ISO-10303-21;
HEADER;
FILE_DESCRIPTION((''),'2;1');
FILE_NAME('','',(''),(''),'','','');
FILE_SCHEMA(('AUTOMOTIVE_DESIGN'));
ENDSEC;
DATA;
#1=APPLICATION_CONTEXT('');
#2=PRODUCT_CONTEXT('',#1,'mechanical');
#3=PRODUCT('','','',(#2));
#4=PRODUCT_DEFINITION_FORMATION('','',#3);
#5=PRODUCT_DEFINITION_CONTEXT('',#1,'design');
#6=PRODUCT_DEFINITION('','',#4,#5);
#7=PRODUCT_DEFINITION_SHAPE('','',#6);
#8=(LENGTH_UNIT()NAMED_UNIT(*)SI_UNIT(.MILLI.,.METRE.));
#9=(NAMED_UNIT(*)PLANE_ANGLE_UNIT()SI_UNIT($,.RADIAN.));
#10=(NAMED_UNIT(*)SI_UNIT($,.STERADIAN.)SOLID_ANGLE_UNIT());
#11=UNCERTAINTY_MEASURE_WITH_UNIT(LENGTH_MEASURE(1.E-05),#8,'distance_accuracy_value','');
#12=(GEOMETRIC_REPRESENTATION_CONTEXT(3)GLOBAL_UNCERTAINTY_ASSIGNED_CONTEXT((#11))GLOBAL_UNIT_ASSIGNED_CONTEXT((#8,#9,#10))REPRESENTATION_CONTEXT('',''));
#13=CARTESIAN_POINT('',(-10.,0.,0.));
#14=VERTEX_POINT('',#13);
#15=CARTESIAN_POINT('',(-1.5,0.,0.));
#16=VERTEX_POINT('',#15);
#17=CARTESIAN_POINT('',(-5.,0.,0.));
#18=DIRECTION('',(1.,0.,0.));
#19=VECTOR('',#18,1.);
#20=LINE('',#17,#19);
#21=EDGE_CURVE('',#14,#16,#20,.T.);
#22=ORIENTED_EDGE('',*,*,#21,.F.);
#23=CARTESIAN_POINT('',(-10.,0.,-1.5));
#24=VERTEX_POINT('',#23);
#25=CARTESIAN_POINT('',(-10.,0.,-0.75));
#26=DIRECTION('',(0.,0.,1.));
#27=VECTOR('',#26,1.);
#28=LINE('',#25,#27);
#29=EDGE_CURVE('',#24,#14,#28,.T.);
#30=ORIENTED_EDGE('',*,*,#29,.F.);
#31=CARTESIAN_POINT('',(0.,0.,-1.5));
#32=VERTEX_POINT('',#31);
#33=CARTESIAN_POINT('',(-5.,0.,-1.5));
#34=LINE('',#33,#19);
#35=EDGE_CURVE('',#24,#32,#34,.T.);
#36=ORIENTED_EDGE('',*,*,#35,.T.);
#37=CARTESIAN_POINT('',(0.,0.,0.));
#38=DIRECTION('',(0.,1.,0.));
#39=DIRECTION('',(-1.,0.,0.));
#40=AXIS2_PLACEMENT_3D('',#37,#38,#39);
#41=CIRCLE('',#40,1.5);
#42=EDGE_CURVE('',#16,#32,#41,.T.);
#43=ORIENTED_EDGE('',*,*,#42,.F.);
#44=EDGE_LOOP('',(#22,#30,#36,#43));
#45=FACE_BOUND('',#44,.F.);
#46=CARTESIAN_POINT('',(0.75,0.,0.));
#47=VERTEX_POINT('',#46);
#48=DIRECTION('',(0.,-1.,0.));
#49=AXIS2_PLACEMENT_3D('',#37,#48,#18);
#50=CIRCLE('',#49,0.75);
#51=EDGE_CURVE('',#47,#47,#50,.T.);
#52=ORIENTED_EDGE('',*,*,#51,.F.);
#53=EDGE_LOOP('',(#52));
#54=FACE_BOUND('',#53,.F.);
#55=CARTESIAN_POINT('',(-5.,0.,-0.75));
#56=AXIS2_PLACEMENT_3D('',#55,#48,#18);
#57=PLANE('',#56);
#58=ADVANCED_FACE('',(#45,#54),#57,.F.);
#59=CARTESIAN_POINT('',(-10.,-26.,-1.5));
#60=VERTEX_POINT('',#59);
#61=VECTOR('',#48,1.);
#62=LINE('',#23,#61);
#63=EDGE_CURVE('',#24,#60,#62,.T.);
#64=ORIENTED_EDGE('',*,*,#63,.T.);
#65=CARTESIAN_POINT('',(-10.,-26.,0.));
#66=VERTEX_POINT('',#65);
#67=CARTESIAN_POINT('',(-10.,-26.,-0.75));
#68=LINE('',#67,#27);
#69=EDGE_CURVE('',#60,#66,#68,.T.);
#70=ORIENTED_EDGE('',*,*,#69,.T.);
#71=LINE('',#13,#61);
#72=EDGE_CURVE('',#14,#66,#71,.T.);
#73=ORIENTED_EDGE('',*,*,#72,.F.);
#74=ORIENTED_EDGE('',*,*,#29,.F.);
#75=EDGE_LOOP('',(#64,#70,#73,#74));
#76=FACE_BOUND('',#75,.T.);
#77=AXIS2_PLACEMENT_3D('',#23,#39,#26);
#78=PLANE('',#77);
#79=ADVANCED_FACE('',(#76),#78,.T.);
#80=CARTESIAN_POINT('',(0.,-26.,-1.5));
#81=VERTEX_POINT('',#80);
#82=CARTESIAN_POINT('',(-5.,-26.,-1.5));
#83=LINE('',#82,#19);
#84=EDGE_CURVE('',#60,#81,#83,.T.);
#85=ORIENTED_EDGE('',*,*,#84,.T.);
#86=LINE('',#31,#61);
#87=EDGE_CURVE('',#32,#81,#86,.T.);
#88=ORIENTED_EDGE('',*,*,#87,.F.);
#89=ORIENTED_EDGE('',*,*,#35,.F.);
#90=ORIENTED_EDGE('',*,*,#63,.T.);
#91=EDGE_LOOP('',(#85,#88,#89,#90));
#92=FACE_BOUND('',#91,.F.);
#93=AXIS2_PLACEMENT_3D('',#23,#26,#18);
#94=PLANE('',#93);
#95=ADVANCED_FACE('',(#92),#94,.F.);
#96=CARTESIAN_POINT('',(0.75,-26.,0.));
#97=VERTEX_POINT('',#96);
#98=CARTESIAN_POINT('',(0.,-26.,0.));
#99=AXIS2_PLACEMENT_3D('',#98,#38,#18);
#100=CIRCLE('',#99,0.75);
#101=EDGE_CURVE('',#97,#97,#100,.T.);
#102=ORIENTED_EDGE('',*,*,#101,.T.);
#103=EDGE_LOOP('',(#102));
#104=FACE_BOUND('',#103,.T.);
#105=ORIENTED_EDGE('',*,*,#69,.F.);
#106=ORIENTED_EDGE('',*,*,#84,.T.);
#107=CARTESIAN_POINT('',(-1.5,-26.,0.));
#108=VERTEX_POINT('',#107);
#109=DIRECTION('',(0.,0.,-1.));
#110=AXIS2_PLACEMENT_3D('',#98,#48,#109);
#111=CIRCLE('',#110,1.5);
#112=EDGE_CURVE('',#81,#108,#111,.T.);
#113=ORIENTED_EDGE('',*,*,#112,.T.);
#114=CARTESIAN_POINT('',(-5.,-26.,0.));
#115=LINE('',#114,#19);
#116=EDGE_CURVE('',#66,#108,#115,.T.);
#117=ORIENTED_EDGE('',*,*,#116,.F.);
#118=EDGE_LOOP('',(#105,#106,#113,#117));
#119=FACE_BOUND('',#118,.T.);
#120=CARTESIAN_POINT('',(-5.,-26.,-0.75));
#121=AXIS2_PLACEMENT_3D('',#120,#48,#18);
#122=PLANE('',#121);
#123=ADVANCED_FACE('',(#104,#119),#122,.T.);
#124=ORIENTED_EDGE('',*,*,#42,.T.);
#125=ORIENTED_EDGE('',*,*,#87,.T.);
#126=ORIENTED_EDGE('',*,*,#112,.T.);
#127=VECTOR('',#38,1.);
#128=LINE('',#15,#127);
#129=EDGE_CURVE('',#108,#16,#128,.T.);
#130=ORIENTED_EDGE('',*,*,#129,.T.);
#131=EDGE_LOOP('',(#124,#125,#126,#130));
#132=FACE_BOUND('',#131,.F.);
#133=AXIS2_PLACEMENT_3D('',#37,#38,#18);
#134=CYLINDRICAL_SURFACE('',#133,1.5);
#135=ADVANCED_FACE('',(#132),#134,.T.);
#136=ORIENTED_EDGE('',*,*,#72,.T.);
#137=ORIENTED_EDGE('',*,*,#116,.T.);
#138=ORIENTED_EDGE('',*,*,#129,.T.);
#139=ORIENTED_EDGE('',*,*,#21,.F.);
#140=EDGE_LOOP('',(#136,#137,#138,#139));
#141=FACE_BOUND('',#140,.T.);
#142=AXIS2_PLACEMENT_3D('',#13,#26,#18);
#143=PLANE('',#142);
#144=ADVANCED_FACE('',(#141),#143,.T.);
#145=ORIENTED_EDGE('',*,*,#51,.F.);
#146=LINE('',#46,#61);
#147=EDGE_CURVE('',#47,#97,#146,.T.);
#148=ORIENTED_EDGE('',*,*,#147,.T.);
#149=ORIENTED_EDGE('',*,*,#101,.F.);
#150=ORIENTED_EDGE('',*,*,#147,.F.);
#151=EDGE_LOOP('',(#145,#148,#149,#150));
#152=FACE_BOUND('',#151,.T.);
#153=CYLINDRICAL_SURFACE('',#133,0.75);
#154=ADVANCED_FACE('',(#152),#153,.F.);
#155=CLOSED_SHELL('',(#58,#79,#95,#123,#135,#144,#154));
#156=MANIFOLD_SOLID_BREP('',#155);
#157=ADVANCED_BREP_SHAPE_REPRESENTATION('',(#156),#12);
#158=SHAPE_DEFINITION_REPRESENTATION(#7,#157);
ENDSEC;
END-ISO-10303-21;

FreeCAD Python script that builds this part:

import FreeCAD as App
import Part
import Sketcher

V = App.Vector

doc = App.newDocument("Part")
params = doc.addObject("Spreadsheet::Sheet", "Params")
for row, (alias, value) in enumerate([
    ("sketch1_diameter", "3 mm"),
    ("pad1_length", "26 mm"),
    ("sketch2_width", "10 mm"),
    ("sketch2_height", "1.5 mm"),
    ("pad2_length", "26 mm"),
    ("sketch3_diameter", "1.5 mm"),
    ("pocket1_length", "28.9 mm"),
], start=1):
    params.set(f"A{row}", alias)
    params.set(f"B{row}", "=" + value)
    params.setAlias(f"B{row}", alias)

body = doc.addObject("PartDesign::Body", "Body")

# Sketch on XZ plane
sketch1 = body.newObject("Sketcher::SketchObject", "Sketch")
sketch1.AttachmentSupport = (doc.getObject("XZ_Plane"), [""])
sketch1.MapMode = "FlatFace"
sketch1.addGeometry(Part.Circle(V(0, 0, 0), V(0, 0, 1), 1.5), False)
sketch1.addConstraint([
    Sketcher.Constraint("Coincident", 0, 3, -1, 1),
    Sketcher.Constraint("Diameter", 0, 3.0),
])
sketch1.setExpression("Constraints[1]", "Params.sketch1_diameter")
pad1 = body.newObject("PartDesign::Pad", "Pad")
pad1.Profile = sketch1
pad1.setExpression("Length", "Params.pad1_length")

# Sketch on XZ plane
sketch2 = body.newObject("Sketcher::SketchObject", "Sketch001")
sketch2.AttachmentSupport = (doc.getObject("XZ_Plane"), [""])
sketch2.MapMode = "FlatFace"
sketch2.addGeometry([
    Part.LineSegment(V(-10, 0, 0), V(-10, -1.5, 0)),
    Part.LineSegment(V(-10, -1.5, 0), V(0, -1.5, 0)),
    Part.LineSegment(V(0, -1.5, 0), V(0, 0, 0)),
    Part.LineSegment(V(0, 0, 0), V(-10, 0, 0)),
], False)
sketch2.addConstraint([
    Sketcher.Constraint("Coincident", 0, 2, 1, 1),
    Sketcher.Constraint("Coincident", 1, 2, 2, 1),
    Sketcher.Constraint("Coincident", 2, 2, 3, 1),
    Sketcher.Constraint("Coincident", 3, 2, 0, 1),
    Sketcher.Constraint("Vertical", 0),
    Sketcher.Constraint("Horizontal", 1),
    Sketcher.Constraint("Vertical", 2),
    Sketcher.Constraint("Horizontal", 3),
    Sketcher.Constraint("Coincident", 2, 2, -1, 1),
    Sketcher.Constraint("DistanceX", 1, 1, 1, 2, 10.0),
    Sketcher.Constraint("DistanceY", 0, 2, 0, 1, 1.5),
])
sketch2.setExpression("Constraints[9]", "Params.sketch2_width")
sketch2.setExpression("Constraints[10]", "Params.sketch2_height")
pad2 = body.newObject("PartDesign::Pad", "Pad001")
pad2.Profile = sketch2
pad2.setExpression("Length", "Params.pad2_length")

# Sketch on XZ plane
sketch3 = body.newObject("Sketcher::SketchObject", "Sketch002")
sketch3.AttachmentSupport = (doc.getObject("XZ_Plane"), [""])
sketch3.MapMode = "FlatFace"
sketch3.addGeometry(Part.Circle(V(0, 0, 0), V(0, 0, 1), 0.75), False)
sketch3.addConstraint([
    Sketcher.Constraint("Coincident", 0, 3, -1, 1),
    Sketcher.Constraint("Diameter", 0, 1.5),
])
sketch3.setExpression("Constraints[1]", "Params.sketch3_diameter")
pocket1 = body.newObject("PartDesign::Pocket", "Pocket")
pocket1.Profile = sketch3
pocket1.setExpression("Length", "Params.pocket1_length")
pocket1.Reversed = True

doc.recompute()
